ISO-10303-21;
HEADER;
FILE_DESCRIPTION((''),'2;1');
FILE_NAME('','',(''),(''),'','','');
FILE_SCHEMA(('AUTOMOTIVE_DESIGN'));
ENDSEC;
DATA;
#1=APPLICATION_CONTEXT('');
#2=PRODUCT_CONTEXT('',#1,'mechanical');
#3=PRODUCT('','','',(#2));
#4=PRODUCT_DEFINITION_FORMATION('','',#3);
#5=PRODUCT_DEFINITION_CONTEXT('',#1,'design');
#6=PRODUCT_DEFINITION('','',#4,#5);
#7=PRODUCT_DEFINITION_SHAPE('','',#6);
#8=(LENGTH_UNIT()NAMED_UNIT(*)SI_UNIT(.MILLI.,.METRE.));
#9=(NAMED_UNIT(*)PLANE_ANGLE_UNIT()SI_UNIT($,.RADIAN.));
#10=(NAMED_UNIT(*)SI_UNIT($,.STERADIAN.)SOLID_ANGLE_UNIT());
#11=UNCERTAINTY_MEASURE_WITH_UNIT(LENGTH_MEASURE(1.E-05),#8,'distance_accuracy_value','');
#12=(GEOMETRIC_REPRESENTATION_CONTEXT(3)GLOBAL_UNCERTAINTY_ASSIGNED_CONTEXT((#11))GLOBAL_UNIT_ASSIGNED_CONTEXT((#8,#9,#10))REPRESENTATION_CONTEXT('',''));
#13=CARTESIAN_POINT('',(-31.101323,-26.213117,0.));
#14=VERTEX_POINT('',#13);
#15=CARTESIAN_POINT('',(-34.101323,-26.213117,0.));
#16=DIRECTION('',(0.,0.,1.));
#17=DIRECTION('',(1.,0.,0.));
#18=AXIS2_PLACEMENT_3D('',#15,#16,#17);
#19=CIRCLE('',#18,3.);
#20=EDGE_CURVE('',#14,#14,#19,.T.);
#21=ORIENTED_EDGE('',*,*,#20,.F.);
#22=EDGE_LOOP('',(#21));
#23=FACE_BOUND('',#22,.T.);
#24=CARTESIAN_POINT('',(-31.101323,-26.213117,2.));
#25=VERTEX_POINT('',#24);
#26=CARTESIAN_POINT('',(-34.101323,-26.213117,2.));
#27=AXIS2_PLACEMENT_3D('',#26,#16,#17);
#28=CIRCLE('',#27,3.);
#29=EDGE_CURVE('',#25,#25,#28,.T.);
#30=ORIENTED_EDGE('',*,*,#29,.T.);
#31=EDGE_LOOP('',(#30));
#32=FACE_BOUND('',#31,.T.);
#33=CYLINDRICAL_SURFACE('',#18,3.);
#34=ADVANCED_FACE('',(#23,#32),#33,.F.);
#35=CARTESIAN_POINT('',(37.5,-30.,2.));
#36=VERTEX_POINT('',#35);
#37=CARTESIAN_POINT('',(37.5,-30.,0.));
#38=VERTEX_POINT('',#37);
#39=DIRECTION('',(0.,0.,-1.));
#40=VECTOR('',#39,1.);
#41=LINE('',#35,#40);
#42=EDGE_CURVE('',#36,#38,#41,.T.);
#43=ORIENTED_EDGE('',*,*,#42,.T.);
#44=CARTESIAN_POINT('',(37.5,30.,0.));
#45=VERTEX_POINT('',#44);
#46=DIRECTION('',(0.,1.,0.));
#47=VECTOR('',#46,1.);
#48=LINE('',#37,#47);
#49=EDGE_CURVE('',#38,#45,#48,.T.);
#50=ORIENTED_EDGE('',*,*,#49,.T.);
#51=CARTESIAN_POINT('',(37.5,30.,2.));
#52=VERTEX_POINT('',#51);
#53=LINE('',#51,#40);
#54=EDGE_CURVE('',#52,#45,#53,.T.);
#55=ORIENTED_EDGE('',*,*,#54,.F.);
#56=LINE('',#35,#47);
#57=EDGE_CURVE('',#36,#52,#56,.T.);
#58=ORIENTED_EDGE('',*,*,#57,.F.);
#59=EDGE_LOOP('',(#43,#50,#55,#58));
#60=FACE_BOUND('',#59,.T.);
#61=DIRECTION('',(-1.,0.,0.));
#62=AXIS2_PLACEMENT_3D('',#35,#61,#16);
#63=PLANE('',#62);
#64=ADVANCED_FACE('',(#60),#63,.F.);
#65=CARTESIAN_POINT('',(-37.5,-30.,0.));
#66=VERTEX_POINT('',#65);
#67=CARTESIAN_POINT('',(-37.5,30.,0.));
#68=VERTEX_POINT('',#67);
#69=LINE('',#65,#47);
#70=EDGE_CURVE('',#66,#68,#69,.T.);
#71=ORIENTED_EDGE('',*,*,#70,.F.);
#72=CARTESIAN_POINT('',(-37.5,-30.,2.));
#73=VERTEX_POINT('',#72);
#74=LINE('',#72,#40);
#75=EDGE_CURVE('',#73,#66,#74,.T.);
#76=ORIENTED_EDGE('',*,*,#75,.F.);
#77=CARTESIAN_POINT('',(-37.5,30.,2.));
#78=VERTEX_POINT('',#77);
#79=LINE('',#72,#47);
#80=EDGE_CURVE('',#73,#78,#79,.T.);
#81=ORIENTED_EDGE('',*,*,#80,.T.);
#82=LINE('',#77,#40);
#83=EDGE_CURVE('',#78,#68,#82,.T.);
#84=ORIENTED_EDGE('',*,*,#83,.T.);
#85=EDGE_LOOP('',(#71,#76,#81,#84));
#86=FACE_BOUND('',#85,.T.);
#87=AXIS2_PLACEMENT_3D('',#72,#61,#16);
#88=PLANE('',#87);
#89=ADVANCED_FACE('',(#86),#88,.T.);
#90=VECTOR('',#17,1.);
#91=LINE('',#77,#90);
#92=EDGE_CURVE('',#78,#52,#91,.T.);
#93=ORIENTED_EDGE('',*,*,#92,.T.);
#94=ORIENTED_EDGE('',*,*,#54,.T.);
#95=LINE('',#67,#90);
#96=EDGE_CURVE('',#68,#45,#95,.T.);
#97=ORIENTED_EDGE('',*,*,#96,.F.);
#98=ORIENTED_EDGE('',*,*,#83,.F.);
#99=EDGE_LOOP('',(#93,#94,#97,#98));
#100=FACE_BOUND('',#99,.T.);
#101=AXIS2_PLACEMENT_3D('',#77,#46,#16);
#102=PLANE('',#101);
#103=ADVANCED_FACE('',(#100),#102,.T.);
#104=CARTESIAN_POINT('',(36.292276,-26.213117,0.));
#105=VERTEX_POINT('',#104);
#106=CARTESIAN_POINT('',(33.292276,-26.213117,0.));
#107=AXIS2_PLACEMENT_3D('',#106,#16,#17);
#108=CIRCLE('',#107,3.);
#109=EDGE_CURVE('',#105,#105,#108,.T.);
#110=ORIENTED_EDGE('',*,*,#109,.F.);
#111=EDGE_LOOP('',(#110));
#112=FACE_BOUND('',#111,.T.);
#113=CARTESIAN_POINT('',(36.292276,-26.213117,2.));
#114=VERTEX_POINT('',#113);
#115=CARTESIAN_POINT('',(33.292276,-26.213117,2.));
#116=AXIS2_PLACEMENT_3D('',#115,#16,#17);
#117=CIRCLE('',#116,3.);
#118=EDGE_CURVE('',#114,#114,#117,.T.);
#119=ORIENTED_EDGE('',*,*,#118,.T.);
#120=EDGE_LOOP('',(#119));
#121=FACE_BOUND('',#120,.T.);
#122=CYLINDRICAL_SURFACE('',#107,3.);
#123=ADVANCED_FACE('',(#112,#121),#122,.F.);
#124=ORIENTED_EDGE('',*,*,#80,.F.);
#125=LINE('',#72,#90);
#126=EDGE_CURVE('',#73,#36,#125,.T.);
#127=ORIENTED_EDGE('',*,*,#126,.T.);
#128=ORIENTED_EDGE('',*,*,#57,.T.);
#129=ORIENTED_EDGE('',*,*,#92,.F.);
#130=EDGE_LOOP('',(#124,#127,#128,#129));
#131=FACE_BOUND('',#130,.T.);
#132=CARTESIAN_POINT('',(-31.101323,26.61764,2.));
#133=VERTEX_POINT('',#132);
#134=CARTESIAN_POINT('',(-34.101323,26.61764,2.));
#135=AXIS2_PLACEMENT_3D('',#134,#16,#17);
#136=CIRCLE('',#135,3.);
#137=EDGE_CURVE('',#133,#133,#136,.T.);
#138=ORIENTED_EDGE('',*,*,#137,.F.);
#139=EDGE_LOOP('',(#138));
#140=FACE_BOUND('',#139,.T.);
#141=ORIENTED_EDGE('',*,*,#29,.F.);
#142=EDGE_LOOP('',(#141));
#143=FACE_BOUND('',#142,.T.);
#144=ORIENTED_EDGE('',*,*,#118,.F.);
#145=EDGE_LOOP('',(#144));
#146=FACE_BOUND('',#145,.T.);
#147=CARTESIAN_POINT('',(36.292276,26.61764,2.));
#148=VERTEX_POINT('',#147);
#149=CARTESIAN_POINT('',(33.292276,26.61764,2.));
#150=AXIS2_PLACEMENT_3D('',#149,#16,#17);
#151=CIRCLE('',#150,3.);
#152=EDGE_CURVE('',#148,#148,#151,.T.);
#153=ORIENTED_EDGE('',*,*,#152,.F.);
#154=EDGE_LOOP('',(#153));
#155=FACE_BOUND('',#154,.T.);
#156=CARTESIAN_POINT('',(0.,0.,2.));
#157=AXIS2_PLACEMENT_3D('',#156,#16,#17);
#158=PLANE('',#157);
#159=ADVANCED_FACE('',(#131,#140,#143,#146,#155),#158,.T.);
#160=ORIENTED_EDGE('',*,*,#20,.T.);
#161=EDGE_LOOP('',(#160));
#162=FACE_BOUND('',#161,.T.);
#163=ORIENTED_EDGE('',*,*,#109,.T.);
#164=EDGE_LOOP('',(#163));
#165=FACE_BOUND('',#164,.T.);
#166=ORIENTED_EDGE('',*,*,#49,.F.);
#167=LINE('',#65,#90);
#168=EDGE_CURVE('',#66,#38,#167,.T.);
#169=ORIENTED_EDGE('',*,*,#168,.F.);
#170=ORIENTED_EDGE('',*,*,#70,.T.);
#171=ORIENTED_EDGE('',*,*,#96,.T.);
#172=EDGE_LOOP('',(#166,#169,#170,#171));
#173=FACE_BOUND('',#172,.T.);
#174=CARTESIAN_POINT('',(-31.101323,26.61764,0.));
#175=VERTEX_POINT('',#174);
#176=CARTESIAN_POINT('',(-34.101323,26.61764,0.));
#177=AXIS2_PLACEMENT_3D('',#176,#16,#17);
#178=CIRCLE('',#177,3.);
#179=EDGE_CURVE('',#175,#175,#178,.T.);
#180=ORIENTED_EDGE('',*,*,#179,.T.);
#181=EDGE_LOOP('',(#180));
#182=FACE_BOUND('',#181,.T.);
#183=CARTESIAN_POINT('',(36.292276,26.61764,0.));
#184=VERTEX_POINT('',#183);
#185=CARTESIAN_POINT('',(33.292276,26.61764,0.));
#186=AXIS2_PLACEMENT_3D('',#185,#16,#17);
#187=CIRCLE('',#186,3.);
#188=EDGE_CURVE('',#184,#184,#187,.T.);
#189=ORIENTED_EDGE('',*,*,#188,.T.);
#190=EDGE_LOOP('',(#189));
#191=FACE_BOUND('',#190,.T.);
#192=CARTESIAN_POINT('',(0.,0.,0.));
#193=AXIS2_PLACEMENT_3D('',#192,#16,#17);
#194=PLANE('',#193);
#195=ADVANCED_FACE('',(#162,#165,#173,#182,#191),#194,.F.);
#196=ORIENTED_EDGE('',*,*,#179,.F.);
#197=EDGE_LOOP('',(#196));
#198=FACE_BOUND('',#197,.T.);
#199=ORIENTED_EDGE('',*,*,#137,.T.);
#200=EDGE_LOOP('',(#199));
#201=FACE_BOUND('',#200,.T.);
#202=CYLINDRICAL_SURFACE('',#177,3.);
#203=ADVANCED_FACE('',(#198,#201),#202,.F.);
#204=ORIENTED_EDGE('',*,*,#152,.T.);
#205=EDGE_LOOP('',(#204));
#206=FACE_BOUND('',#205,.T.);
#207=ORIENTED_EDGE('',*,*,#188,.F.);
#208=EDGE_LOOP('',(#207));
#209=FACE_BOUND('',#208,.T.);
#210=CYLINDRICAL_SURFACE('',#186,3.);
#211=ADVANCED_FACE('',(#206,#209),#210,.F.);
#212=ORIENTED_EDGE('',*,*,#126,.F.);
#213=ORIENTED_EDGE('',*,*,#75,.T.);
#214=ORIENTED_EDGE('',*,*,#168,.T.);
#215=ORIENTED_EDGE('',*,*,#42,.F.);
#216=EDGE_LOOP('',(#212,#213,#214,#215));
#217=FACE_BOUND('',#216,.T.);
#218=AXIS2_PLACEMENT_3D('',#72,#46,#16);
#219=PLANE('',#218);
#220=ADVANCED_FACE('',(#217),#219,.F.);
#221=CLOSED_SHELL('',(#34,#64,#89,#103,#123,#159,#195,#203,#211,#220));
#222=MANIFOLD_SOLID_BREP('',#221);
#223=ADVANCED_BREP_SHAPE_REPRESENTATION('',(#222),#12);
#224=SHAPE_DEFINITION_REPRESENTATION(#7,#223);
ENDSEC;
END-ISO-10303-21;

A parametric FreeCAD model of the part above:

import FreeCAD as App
import Part
import Sketcher
from FreeCAD import Vector
Q = App.Units.Quantity

doc = App.newDocument("Part")
body = doc.addObject("PartDesign::Body", "Body")

# Sketch on XY plane
sketch1 = doc.addObject("Sketcher::SketchObject", "Sketch")
body.addObject(sketch1)
sketch1.AttachmentSupport = (doc.XY_Plane, [""])
sketch1.MapMode = "FlatFace"
sketch1.addGeometry([
    Part.LineSegment(Vector(-38, 30, 0), Vector(-38, -30, 0)),
    Part.LineSegment(Vector(-38, -30, 0), Vector(38, -30, 0)),
    Part.LineSegment(Vector(38, -30, 0), Vector(38, 30, 0)),
    Part.LineSegment(Vector(38, 30, 0), Vector(-38, 30, 0)),
], False)
sketch1.addConstraint([
    Sketcher.Constraint("Coincident", 0, 2, 1, 1),
    Sketcher.Constraint("Coincident", 1, 2, 2, 1),
    Sketcher.Constraint("Coincident", 2, 2, 3, 1),
    Sketcher.Constraint("Coincident", 3, 2, 0, 1),
    Sketcher.Constraint("Vertical", 0),
    Sketcher.Constraint("Horizontal", 1),
    Sketcher.Constraint("Vertical", 2),
    Sketcher.Constraint("Horizontal", 3),
    Sketcher.Constraint("Symmetric", 0, 2, 2, 2, -1, 1),
    Sketcher.Constraint("DistanceX", 1, 1, 1, 2, Q("75 mm")),
    Sketcher.Constraint("DistanceY", 0, 2, 0, 1, Q("60 mm")),
])
pad1 = doc.addObject("PartDesign::Pad", "Pad")
body.addObject(pad1)
pad1.Profile = sketch1
pad1.Length = 2

# Sketch on XY plane
sketch2 = doc.addObject("Sketcher::SketchObject", "Sketch001")
body.addObject(sketch2)
sketch2.AttachmentSupport = (doc.XY_Plane, [""])
sketch2.MapMode = "FlatFace"
sketch2.AttachmentOffset = App.Placement(Vector(0, 0, 2), App.Rotation())
sketch2.addGeometry([
    Part.Circle(Vector(-34.1, 26.6, 0), Vector(0, 0, 1), 3),
    Part.Circle(Vector(33.3, 26.6, 0), Vector(0, 0, 1), 3),
    Part.Circle(Vector(33.3, -26.2, 0), Vector(0, 0, 1), 3),
    Part.Circle(Vector(-34.1, -26.2, 0), Vector(0, 0, 1), 3),
], False)
sketch2.addConstraint([
    Sketcher.Constraint("Equal", 0, 1),
    Sketcher.Constraint("Equal", 1, 2),
    Sketcher.Constraint("Equal", 2, 3),
    Sketcher.Constraint("Horizontal", 0, 3, 1, 3),
    Sketcher.Constraint("Horizontal", 2, 3, 3, 3),
    Sketcher.Constraint("Vertical", 1, 3, 2, 3),
    Sketcher.Constraint("Vertical", 0, 3, 3, 3),
    Sketcher.Constraint("Diameter", 0, Q("6 mm")),
    Sketcher.Constraint("DistanceX", 0, 3, 1, 3, Q("67.393599 mm")),
    Sketcher.Constraint("DistanceY", -1, 1, 0, 3, Q("26.61764 mm")),
    Sketcher.Constraint("DistanceX", 0, 3, -1, 1, Q("34.101323 mm")),
    Sketcher.Constraint("DistanceY", 2, 3, -1, 1, Q("26.213117 mm")),
])
pocket1 = doc.addObject("PartDesign::Pocket", "Pocket")
body.addObject(pocket1)
pocket1.Profile = sketch2
pocket1.Length = 2

doc.recompute()
